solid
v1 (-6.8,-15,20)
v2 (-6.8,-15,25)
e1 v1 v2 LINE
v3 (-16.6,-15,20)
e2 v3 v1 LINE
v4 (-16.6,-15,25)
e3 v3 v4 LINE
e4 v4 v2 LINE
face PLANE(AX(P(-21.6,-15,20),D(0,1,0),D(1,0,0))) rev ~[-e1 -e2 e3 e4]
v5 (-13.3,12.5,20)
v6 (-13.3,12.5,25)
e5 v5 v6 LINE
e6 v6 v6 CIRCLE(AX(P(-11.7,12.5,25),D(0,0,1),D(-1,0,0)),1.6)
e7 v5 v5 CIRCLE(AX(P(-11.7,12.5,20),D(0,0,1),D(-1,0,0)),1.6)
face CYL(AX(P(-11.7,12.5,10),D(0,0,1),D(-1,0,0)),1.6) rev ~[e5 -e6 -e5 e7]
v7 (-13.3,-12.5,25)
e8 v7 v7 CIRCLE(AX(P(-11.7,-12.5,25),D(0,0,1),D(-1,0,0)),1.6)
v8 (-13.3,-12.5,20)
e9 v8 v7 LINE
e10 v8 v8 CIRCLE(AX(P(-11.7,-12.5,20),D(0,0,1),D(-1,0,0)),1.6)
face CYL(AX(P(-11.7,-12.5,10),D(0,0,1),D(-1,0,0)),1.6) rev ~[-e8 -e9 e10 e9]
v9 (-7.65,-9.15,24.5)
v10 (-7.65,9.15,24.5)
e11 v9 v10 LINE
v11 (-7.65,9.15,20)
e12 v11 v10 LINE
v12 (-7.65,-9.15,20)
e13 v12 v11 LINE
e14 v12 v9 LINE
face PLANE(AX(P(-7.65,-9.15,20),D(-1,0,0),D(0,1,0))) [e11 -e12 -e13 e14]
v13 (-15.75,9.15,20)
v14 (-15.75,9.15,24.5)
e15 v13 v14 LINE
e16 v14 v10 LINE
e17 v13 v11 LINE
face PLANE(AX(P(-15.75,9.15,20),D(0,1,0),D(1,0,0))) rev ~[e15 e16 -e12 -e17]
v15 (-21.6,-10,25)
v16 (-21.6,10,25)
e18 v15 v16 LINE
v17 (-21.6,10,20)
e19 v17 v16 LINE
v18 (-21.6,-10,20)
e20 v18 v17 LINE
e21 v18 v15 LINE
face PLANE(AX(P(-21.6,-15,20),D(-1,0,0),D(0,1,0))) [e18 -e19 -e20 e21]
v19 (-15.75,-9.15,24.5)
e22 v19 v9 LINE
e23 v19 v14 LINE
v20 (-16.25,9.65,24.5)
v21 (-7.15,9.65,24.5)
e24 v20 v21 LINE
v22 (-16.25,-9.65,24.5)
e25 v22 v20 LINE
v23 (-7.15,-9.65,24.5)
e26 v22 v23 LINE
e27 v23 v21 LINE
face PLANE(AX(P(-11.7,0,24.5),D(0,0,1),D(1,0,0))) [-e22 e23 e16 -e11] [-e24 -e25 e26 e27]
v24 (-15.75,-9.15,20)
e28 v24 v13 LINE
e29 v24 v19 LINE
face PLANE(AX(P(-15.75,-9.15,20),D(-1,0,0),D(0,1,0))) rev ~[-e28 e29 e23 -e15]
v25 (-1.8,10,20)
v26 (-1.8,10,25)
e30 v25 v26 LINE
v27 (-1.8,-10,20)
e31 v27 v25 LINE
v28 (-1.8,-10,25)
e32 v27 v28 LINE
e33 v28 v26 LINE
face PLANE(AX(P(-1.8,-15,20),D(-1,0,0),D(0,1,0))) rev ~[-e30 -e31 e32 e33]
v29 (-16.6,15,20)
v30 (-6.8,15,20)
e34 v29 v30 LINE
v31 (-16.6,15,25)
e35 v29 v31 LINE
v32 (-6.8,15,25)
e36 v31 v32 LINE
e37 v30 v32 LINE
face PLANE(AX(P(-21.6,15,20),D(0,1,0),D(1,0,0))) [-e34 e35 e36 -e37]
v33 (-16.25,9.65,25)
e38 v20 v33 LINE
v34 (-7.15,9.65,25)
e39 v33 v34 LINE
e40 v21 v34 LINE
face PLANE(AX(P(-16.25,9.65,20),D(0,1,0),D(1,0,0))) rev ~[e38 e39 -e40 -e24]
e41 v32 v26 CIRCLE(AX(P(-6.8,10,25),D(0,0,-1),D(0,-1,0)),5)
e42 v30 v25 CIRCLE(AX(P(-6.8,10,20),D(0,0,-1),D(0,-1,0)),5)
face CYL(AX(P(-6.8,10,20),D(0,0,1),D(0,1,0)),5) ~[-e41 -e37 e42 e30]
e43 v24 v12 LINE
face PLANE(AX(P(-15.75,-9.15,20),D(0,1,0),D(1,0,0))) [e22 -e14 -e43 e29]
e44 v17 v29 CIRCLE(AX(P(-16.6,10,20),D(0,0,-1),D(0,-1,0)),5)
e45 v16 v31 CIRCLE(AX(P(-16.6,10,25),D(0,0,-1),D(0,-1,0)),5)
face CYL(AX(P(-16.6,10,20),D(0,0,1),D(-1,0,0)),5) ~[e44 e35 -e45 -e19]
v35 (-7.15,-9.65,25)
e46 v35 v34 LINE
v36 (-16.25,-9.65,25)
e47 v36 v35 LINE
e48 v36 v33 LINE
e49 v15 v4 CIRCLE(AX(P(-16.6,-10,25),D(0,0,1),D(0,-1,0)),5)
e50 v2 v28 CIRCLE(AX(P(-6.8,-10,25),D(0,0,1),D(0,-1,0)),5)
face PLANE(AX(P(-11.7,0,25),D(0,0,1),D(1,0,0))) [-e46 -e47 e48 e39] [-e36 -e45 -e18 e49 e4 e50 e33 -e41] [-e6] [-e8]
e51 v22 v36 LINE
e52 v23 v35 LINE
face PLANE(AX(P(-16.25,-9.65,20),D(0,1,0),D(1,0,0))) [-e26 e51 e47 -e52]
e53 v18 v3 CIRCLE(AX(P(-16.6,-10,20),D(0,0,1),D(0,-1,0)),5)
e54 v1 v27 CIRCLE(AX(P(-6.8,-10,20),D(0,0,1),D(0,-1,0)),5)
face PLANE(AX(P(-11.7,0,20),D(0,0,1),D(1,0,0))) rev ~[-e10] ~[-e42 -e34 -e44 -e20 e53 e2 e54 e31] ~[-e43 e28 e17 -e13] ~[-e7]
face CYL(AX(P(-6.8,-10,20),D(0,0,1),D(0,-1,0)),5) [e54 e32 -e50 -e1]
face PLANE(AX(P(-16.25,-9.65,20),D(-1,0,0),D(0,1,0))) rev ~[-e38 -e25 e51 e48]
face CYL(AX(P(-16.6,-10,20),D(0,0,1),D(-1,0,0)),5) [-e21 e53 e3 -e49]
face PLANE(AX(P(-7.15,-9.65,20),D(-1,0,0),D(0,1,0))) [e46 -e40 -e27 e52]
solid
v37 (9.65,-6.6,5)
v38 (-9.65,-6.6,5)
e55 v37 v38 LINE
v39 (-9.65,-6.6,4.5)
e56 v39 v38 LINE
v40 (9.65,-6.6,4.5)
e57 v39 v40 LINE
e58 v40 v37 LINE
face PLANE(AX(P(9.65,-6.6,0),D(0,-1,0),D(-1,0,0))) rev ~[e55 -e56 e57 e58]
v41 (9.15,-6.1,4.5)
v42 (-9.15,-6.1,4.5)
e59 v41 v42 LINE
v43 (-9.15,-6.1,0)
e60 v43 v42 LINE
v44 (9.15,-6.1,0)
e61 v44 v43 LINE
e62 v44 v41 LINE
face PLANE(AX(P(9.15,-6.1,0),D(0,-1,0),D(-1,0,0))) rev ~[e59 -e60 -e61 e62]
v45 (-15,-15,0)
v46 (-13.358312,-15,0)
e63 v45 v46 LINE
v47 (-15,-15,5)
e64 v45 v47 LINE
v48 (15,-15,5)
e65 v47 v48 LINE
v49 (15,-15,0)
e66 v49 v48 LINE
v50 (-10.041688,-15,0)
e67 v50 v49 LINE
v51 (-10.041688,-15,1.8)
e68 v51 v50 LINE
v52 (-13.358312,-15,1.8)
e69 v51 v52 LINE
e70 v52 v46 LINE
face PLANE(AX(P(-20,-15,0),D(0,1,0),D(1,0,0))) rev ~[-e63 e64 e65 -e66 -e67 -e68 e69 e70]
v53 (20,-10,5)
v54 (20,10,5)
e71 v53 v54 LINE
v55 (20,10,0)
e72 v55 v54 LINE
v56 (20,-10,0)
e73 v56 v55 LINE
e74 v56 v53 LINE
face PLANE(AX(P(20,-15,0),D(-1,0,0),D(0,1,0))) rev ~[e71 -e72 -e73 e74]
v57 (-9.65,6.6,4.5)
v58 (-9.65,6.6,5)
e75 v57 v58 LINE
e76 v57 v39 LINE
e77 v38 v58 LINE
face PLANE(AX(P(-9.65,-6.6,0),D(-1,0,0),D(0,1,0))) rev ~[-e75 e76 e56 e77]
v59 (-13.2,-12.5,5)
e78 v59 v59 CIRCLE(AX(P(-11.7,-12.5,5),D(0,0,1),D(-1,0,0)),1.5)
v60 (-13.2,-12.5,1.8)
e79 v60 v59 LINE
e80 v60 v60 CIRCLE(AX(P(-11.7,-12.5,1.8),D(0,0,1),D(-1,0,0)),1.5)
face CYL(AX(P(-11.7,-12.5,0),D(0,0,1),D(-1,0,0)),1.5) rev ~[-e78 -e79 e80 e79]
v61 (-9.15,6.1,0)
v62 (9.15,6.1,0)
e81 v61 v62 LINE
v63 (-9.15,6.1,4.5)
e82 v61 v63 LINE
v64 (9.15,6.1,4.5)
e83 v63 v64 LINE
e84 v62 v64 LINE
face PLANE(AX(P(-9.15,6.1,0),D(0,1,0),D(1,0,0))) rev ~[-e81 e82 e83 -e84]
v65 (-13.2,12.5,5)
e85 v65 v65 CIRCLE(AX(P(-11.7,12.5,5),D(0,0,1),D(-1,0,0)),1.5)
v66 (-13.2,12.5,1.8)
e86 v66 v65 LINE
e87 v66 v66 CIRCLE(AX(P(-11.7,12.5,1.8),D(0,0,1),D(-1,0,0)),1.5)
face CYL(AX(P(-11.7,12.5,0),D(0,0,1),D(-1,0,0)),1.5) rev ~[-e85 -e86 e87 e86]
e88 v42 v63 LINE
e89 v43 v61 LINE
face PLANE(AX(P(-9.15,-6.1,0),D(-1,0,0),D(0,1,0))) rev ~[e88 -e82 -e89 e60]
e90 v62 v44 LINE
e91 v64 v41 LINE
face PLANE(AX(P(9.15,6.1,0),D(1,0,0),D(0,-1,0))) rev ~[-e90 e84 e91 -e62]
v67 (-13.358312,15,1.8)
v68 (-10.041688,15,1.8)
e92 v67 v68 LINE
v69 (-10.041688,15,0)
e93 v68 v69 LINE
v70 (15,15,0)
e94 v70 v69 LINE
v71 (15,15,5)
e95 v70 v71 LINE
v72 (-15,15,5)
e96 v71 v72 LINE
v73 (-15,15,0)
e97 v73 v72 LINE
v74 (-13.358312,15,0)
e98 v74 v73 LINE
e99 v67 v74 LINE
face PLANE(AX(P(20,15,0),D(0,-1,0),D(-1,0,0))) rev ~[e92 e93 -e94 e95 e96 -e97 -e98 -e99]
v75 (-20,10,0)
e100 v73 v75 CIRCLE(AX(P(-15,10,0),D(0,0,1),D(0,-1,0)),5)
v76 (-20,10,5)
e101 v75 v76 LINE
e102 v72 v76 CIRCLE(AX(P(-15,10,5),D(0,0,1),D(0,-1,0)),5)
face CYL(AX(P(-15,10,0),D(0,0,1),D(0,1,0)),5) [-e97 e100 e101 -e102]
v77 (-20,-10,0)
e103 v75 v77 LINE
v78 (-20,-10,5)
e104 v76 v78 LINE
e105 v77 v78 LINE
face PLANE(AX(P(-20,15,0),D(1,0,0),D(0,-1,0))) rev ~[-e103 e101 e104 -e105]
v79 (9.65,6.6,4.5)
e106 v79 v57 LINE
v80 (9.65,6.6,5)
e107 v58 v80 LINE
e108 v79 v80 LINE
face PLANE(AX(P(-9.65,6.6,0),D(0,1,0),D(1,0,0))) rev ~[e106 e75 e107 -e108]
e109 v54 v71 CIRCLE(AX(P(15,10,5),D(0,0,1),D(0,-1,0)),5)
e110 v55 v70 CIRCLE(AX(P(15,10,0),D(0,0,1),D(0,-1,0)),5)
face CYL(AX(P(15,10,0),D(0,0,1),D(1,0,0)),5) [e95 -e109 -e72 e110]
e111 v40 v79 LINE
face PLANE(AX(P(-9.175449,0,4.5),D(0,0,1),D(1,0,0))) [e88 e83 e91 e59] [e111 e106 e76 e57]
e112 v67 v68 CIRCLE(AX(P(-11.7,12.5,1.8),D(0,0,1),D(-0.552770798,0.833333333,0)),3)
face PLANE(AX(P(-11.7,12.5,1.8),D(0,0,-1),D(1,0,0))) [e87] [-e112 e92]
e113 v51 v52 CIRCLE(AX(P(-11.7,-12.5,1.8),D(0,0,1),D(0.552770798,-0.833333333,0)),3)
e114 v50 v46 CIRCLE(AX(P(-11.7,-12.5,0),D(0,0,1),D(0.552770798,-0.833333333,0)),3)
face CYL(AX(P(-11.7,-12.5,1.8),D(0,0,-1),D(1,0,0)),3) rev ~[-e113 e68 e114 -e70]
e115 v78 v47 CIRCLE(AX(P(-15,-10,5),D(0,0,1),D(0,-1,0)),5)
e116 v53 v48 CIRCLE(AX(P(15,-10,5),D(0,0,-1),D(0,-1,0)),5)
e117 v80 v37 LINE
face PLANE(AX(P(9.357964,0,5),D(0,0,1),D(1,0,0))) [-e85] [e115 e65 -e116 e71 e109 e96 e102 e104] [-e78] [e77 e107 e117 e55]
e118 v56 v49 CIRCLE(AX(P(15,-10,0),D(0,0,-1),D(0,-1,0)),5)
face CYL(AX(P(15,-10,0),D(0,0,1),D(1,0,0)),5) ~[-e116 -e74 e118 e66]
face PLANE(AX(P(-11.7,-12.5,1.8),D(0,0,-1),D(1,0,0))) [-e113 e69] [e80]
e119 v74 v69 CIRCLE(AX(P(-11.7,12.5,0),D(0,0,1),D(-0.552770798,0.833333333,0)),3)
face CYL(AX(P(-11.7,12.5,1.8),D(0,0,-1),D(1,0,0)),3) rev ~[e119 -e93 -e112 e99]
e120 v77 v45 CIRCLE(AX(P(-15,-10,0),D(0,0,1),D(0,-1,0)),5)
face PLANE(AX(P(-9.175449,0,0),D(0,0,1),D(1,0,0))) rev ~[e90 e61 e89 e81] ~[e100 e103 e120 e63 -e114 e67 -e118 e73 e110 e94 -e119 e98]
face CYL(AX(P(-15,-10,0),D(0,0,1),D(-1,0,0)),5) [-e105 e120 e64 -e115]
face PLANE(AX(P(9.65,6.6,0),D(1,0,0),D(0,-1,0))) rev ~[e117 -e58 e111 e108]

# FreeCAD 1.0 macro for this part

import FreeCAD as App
import Part
import Sketcher
from FreeCAD import Vector


def edges_at(feature, points):
    """Names of the edges that pass closest to the given points."""
    edges = feature.Shape.Edges
    near = lambda p: min(range(len(edges)), key=lambda i: edges[i].distToShape(Part.Vertex(*p))[0])
    return sorted({f"Edge{near(p) + 1}" for p in points})


def add_polygon(sketch, points):
    """Adds a closed chain of lines whose ends are joined by coincident constraints."""
    first, n = sketch.GeometryCount, len(points)
    for a, b in zip(points, points[1:] + points[:1]):
        sketch.addGeometry(Part.LineSegment(App.Vector(*a, 0), App.Vector(*b, 0)), False)
    for i in range(n):
        sketch.addConstraint(Sketcher.Constraint("Coincident", first + i, 2, first + (i + 1) % n, 1))

doc = App.newDocument("Part")
body = doc.addObject("PartDesign::Body", "Body")

# Sketch on XY plane
sketch1 = body.newObject("Sketcher::SketchObject", "Sketch")
sketch1.AttachmentSupport = (doc.getObject("XY_Plane"), [""])
sketch1.MapMode = "FlatFace"
add_polygon(sketch1, [(20, -15), (20, 15), (-20, 15), (-20, -15)])  # lines 0-3
add_polygon(sketch1, [(9.65, -6.6), (-9.65, -6.6), (-9.65, 6.6), (9.65, 6.6)])  # lines 4-7
sketch1.addConstraint(Sketcher.Constraint("Vertical", 0))
sketch1.addConstraint(Sketcher.Constraint("Horizontal", 1))
sketch1.addConstraint(Sketcher.Constraint("Vertical", 2))
sketch1.addConstraint(Sketcher.Constraint("Horizontal", 3))
sketch1.addConstraint(Sketcher.Constraint("Horizontal", 4))
sketch1.addConstraint(Sketcher.Constraint("Vertical", 5))
sketch1.addConstraint(Sketcher.Constraint("Horizontal", 6))
sketch1.addConstraint(Sketcher.Constraint("Vertical", 7))
sketch1.addConstraint(Sketcher.Constraint("Symmetric", 0, 2, 2, 2, -1, 1))
sketch1.addConstraint(Sketcher.Constraint("Symmetric", 4, 2, 6, 2, -1, 1))
sketch1.addConstraint(Sketcher.Constraint("DistanceX", 1, 2, 1, 1, 40.0))
sketch1.addConstraint(Sketcher.Constraint("DistanceY", 0, 1, 0, 2, 30.0))
sketch1.addConstraint(Sketcher.Constraint("DistanceX", 4, 2, 4, 1, 19.3))
sketch1.addConstraint(Sketcher.Constraint("DistanceY", 5, 1, 5, 2, 13.2))
pad1 = body.newObject("PartDesign::Pad", "Pad")
pad1.Profile = sketch1
pad1.Length = 5

# Sketch on XY plane
sketch2 = body.newObject("Sketcher::SketchObject", "Sketch001")
sketch2.AttachmentSupport = (doc.getObject("XY_Plane"), [""])
sketch2.MapMode = "FlatFace"
add_polygon(sketch2, [(-9.65, 6.6), (-9.65, -6.6), (9.65, -6.6), (9.65, 6.6)])  # lines 0-3
add_polygon(sketch2, [(9.15, 6.1), (9.15, -6.1), (-9.15, -6.1), (-9.15, 6.1)])  # lines 4-7
sketch2.addConstraint(Sketcher.Constraint("Vertical", 0))
sketch2.addConstraint(Sketcher.Constraint("Horizontal", 1))
sketch2.addConstraint(Sketcher.Constraint("Vertical", 2))
sketch2.addConstraint(Sketcher.Constraint("Horizontal", 3))
sketch2.addConstraint(Sketcher.Constraint("Vertical", 4))
sketch2.addConstraint(Sketcher.Constraint("Horizontal", 5))
sketch2.addConstraint(Sketcher.Constraint("Vertical", 6))
sketch2.addConstraint(Sketcher.Constraint("Horizontal", 7))
sketch2.addConstraint(Sketcher.Constraint("Symmetric", 0, 2, 2, 2, -1, 1))
sketch2.addConstraint(Sketcher.Constraint("Symmetric", 4, 2, 6, 2, -1, 1))
sketch2.addConstraint(Sketcher.Constraint("DistanceX", 1, 1, 1, 2, 19.3))
sketch2.addConstraint(Sketcher.Constraint("DistanceX", 5, 2, 5, 1, 18.3))
sketch2.addConstraint(Sketcher.Constraint("DistanceY", 0, 2, 0, 1, 13.2))
sketch2.addConstraint(Sketcher.Constraint("DistanceY", 4, 2, 4, 1, 12.2))
pad2 = body.newObject("PartDesign::Pad", "Pad001")
pad2.Profile = sketch2
pad2.Length = 4.5
doc.recompute()

fillet = body.newObject("PartDesign::Fillet", "Fillet")
fillet.Base = (pad2, edges_at(pad2, [
    (-20, -15, 2.5),
    (20, -15, 2.5),
    (-20, 15, 2.5),
    (20, 15, 2.5),
]))
fillet.Radius = 5

# Sketch on XY plane
sketch3 = body.newObject("Sketcher::SketchObject", "Sketch002")
sketch3.AttachmentSupport = (doc.getObject("XY_Plane"), [""])
sketch3.MapMode = "FlatFace"
sketch3.addGeometry(Part.Circle(Vector(-11.7, -12.5, 0), Vector(0, 0, 1), 1.5), False)
sketch3.addGeometry(Part.Circle(Vector(-11.7, 12.5, 0), Vector(0, 0, 1), 1.5), False)
sketch3.addConstraint(Sketcher.Constraint("Equal", 0, 1))
sketch3.addConstraint(Sketcher.Constraint("Symmetric", 0, 3, 1, 3, -1))
sketch3.addConstraint(Sketcher.Constraint("Diameter", 0, 3.0))
sketch3.addConstraint(Sketcher.Constraint("DistanceY", 0, 3, 1, 3, 25.0))
sketch3.addConstraint(Sketcher.Constraint("DistanceX", 0, 3, -1, 1, 11.7))
doc.recompute()
hole = body.newObject("PartDesign::Hole", "Hole")
hole.Profile = sketch3
hole.ThreadType = "None"
hole.Diameter = 3
hole.DepthType = "Dimension"
hole.Depth = 10
hole.DrillPoint = "Angled"
hole.DrillPointAngle = 118
hole.HoleCutType = "Counterbore"
hole.HoleCutDiameter = 6
hole.HoleCutDepth = 1.8
hole.Reversed = True
body2 = doc.addObject("PartDesign::Body", "Body001")

# Sketch on XY plane
sketch4 = body2.newObject("Sketcher::SketchObject", "Sketch003")
sketch4.AttachmentSupport = (doc.getObject("XY_Plane001"), [""])
sketch4.MapMode = "FlatFace"
sketch4.AttachmentOffset = App.Placement(Vector(0, 0, 20), App.Rotation())
add_polygon(sketch4, [(-21.6, 15), (-21.6, -15), (-1.8, -15), (-1.8, 15)])  # lines 0-3
add_polygon(sketch4, [(-7.15, -9.65), (-16.25, -9.65), (-16.25, 9.65), (-7.15, 9.65)])  # lines 4-7
sketch4.addConstraint(Sketcher.Constraint("Vertical", 0))
sketch4.addConstraint(Sketcher.Constraint("Horizontal", 1))
sketch4.addConstraint(Sketcher.Constraint("Vertical", 2))
sketch4.addConstraint(Sketcher.Constraint("Horizontal", 3))
sketch4.addConstraint(Sketcher.Constraint("Horizontal", 4))
sketch4.addConstraint(Sketcher.Constraint("Vertical", 5))
sketch4.addConstraint(Sketcher.Constraint("Horizontal", 6))
sketch4.addConstraint(Sketcher.Constraint("Vertical", 7))
sketch4.addConstraint(Sketcher.Constraint("DistanceY", 0, 2, 0, 1, 30.0))
sketch4.addConstraint(Sketcher.Constraint("DistanceX", 1, 1, 1, 2, 19.8))
sketch4.addConstraint(Sketcher.Constraint("DistanceX", 4, 2, 4, 1, 9.1))
sketch4.addConstraint(Sketcher.Constraint("DistanceY", 5, 1, 5, 2, 19.3))
sketch4.addConstraint(Sketcher.Constraint("DistanceY", 0, 2, -1, 1, 15.0))
sketch4.addConstraint(Sketcher.Constraint("DistanceX", 0, 2, -1, 1, 21.6))
sketch4.addConstraint(Sketcher.Constraint("DistanceX", 4, 2, -1, 1, 16.25))
sketch4.addConstraint(Sketcher.Constraint("DistanceY", 4, 2, -1, 1, 9.65))
pad3 = body2.newObject("PartDesign::Pad", "Pad002")
pad3.Profile = sketch4
pad3.Length = 5

# Sketch on XY plane
sketch5 = body2.newObject("Sketcher::SketchObject", "Sketch004")
sketch5.AttachmentSupport = (doc.getObject("XY_Plane001"), [""])
sketch5.MapMode = "FlatFace"
sketch5.AttachmentOffset = App.Placement(Vector(0, 0, 20), App.Rotation())
add_polygon(sketch5, [(-16.25, 9.65), (-16.25, -9.65), (-7.15, -9.65), (-7.15, 9.65)])  # lines 0-3
add_polygon(sketch5, [(-7.65, -9.15), (-15.75, -9.15), (-15.75, 9.15), (-7.65, 9.15)])  # lines 4-7
sketch5.addConstraint(Sketcher.Constraint("Vertical", 0))
sketch5.addConstraint(Sketcher.Constraint("Horizontal", 1))
sketch5.addConstraint(Sketcher.Constraint("Vertical", 2))
sketch5.addConstraint(Sketcher.Constraint("Horizontal", 3))
sketch5.addConstraint(Sketcher.Constraint("Horizontal", 4))
sketch5.addConstraint(Sketcher.Constraint("Vertical", 5))
sketch5.addConstraint(Sketcher.Constraint("Horizontal", 6))
sketch5.addConstraint(Sketcher.Constraint("Vertical", 7))
sketch5.addConstraint(Sketcher.Constraint("DistanceX", 1, 1, 1, 2, 9.1))
sketch5.addConstraint(Sketcher.Constraint("DistanceX", 4, 2, 4, 1, 8.1))
sketch5.addConstraint(Sketcher.Constraint("DistanceY", 0, 2, 0, 1, 19.3))
sketch5.addConstraint(Sketcher.Constraint("DistanceY", 5, 1, 5, 2, 18.3))
sketch5.addConstraint(Sketcher.Constraint("DistanceX", 0, 2, 4, 2, 0.5))
sketch5.addConstraint(Sketcher.Constraint("DistanceY", 0, 2, 4, 2, 0.5))
sketch5.addConstraint(Sketcher.Constraint("DistanceX", 0, 2, -1, 1, 16.25))
sketch5.addConstraint(Sketcher.Constraint("DistanceY", 0, 2, -1, 1, 9.65))
pad4 = body2.newObject("PartDesign::Pad", "Pad003")
pad4.Profile = sketch5
pad4.Length = 4.5
doc.recompute()

fillet2 = body2.newObject("PartDesign::Fillet", "Fillet001")
fillet2.Base = (pad4, edges_at(pad4, [
    (-1.8, 15, 22.5),
    (-21.6, 15, 22.5),
    (-21.6, -15, 22.5),
    (-1.8, -15, 22.5),
]))
fillet2.Radius = 5

# Sketch on XY plane
sketch6 = body2.newObject("Sketcher::SketchObject", "Sketch005")
sketch6.AttachmentSupport = (doc.getObject("XY_Plane001"), [""])
sketch6.MapMode = "FlatFace"
sketch6.AttachmentOffset = App.Placement(Vector(0, 0, 20), App.Rotation())
sketch6.addGeometry(Part.Circle(Vector(-11.7, -12.5, 0), Vector(0, 0, 1), 1.6), False)
sketch6.addGeometry(Part.Circle(Vector(-11.7, 12.5, 0), Vector(0, 0, 1), 1.6), False)
sketch6.addConstraint(Sketcher.Constraint("Equal", 0, 1))
sketch6.addConstraint(Sketcher.Constraint("Symmetric", 0, 3, 1, 3, -1))
sketch6.addConstraint(Sketcher.Constraint("Diameter", 0, 3.2))
sketch6.addConstraint(Sketcher.Constraint("DistanceY", 0, 3, 1, 3, 25.0))
sketch6.addConstraint(Sketcher.Constraint("DistanceX", 0, 3, -1, 1, 11.7))
doc.recompute()
hole2 = body2.newObject("PartDesign::Hole", "Hole001")
hole2.Profile = sketch6
hole2.ThreadType = "None"
hole2.Diameter = 3.2
hole2.DepthType = "Dimension"
hole2.Depth = 10
hole2.DrillPoint = "Angled"
hole2.DrillPointAngle = 118
hole2.Reversed = True

doc.recompute()
